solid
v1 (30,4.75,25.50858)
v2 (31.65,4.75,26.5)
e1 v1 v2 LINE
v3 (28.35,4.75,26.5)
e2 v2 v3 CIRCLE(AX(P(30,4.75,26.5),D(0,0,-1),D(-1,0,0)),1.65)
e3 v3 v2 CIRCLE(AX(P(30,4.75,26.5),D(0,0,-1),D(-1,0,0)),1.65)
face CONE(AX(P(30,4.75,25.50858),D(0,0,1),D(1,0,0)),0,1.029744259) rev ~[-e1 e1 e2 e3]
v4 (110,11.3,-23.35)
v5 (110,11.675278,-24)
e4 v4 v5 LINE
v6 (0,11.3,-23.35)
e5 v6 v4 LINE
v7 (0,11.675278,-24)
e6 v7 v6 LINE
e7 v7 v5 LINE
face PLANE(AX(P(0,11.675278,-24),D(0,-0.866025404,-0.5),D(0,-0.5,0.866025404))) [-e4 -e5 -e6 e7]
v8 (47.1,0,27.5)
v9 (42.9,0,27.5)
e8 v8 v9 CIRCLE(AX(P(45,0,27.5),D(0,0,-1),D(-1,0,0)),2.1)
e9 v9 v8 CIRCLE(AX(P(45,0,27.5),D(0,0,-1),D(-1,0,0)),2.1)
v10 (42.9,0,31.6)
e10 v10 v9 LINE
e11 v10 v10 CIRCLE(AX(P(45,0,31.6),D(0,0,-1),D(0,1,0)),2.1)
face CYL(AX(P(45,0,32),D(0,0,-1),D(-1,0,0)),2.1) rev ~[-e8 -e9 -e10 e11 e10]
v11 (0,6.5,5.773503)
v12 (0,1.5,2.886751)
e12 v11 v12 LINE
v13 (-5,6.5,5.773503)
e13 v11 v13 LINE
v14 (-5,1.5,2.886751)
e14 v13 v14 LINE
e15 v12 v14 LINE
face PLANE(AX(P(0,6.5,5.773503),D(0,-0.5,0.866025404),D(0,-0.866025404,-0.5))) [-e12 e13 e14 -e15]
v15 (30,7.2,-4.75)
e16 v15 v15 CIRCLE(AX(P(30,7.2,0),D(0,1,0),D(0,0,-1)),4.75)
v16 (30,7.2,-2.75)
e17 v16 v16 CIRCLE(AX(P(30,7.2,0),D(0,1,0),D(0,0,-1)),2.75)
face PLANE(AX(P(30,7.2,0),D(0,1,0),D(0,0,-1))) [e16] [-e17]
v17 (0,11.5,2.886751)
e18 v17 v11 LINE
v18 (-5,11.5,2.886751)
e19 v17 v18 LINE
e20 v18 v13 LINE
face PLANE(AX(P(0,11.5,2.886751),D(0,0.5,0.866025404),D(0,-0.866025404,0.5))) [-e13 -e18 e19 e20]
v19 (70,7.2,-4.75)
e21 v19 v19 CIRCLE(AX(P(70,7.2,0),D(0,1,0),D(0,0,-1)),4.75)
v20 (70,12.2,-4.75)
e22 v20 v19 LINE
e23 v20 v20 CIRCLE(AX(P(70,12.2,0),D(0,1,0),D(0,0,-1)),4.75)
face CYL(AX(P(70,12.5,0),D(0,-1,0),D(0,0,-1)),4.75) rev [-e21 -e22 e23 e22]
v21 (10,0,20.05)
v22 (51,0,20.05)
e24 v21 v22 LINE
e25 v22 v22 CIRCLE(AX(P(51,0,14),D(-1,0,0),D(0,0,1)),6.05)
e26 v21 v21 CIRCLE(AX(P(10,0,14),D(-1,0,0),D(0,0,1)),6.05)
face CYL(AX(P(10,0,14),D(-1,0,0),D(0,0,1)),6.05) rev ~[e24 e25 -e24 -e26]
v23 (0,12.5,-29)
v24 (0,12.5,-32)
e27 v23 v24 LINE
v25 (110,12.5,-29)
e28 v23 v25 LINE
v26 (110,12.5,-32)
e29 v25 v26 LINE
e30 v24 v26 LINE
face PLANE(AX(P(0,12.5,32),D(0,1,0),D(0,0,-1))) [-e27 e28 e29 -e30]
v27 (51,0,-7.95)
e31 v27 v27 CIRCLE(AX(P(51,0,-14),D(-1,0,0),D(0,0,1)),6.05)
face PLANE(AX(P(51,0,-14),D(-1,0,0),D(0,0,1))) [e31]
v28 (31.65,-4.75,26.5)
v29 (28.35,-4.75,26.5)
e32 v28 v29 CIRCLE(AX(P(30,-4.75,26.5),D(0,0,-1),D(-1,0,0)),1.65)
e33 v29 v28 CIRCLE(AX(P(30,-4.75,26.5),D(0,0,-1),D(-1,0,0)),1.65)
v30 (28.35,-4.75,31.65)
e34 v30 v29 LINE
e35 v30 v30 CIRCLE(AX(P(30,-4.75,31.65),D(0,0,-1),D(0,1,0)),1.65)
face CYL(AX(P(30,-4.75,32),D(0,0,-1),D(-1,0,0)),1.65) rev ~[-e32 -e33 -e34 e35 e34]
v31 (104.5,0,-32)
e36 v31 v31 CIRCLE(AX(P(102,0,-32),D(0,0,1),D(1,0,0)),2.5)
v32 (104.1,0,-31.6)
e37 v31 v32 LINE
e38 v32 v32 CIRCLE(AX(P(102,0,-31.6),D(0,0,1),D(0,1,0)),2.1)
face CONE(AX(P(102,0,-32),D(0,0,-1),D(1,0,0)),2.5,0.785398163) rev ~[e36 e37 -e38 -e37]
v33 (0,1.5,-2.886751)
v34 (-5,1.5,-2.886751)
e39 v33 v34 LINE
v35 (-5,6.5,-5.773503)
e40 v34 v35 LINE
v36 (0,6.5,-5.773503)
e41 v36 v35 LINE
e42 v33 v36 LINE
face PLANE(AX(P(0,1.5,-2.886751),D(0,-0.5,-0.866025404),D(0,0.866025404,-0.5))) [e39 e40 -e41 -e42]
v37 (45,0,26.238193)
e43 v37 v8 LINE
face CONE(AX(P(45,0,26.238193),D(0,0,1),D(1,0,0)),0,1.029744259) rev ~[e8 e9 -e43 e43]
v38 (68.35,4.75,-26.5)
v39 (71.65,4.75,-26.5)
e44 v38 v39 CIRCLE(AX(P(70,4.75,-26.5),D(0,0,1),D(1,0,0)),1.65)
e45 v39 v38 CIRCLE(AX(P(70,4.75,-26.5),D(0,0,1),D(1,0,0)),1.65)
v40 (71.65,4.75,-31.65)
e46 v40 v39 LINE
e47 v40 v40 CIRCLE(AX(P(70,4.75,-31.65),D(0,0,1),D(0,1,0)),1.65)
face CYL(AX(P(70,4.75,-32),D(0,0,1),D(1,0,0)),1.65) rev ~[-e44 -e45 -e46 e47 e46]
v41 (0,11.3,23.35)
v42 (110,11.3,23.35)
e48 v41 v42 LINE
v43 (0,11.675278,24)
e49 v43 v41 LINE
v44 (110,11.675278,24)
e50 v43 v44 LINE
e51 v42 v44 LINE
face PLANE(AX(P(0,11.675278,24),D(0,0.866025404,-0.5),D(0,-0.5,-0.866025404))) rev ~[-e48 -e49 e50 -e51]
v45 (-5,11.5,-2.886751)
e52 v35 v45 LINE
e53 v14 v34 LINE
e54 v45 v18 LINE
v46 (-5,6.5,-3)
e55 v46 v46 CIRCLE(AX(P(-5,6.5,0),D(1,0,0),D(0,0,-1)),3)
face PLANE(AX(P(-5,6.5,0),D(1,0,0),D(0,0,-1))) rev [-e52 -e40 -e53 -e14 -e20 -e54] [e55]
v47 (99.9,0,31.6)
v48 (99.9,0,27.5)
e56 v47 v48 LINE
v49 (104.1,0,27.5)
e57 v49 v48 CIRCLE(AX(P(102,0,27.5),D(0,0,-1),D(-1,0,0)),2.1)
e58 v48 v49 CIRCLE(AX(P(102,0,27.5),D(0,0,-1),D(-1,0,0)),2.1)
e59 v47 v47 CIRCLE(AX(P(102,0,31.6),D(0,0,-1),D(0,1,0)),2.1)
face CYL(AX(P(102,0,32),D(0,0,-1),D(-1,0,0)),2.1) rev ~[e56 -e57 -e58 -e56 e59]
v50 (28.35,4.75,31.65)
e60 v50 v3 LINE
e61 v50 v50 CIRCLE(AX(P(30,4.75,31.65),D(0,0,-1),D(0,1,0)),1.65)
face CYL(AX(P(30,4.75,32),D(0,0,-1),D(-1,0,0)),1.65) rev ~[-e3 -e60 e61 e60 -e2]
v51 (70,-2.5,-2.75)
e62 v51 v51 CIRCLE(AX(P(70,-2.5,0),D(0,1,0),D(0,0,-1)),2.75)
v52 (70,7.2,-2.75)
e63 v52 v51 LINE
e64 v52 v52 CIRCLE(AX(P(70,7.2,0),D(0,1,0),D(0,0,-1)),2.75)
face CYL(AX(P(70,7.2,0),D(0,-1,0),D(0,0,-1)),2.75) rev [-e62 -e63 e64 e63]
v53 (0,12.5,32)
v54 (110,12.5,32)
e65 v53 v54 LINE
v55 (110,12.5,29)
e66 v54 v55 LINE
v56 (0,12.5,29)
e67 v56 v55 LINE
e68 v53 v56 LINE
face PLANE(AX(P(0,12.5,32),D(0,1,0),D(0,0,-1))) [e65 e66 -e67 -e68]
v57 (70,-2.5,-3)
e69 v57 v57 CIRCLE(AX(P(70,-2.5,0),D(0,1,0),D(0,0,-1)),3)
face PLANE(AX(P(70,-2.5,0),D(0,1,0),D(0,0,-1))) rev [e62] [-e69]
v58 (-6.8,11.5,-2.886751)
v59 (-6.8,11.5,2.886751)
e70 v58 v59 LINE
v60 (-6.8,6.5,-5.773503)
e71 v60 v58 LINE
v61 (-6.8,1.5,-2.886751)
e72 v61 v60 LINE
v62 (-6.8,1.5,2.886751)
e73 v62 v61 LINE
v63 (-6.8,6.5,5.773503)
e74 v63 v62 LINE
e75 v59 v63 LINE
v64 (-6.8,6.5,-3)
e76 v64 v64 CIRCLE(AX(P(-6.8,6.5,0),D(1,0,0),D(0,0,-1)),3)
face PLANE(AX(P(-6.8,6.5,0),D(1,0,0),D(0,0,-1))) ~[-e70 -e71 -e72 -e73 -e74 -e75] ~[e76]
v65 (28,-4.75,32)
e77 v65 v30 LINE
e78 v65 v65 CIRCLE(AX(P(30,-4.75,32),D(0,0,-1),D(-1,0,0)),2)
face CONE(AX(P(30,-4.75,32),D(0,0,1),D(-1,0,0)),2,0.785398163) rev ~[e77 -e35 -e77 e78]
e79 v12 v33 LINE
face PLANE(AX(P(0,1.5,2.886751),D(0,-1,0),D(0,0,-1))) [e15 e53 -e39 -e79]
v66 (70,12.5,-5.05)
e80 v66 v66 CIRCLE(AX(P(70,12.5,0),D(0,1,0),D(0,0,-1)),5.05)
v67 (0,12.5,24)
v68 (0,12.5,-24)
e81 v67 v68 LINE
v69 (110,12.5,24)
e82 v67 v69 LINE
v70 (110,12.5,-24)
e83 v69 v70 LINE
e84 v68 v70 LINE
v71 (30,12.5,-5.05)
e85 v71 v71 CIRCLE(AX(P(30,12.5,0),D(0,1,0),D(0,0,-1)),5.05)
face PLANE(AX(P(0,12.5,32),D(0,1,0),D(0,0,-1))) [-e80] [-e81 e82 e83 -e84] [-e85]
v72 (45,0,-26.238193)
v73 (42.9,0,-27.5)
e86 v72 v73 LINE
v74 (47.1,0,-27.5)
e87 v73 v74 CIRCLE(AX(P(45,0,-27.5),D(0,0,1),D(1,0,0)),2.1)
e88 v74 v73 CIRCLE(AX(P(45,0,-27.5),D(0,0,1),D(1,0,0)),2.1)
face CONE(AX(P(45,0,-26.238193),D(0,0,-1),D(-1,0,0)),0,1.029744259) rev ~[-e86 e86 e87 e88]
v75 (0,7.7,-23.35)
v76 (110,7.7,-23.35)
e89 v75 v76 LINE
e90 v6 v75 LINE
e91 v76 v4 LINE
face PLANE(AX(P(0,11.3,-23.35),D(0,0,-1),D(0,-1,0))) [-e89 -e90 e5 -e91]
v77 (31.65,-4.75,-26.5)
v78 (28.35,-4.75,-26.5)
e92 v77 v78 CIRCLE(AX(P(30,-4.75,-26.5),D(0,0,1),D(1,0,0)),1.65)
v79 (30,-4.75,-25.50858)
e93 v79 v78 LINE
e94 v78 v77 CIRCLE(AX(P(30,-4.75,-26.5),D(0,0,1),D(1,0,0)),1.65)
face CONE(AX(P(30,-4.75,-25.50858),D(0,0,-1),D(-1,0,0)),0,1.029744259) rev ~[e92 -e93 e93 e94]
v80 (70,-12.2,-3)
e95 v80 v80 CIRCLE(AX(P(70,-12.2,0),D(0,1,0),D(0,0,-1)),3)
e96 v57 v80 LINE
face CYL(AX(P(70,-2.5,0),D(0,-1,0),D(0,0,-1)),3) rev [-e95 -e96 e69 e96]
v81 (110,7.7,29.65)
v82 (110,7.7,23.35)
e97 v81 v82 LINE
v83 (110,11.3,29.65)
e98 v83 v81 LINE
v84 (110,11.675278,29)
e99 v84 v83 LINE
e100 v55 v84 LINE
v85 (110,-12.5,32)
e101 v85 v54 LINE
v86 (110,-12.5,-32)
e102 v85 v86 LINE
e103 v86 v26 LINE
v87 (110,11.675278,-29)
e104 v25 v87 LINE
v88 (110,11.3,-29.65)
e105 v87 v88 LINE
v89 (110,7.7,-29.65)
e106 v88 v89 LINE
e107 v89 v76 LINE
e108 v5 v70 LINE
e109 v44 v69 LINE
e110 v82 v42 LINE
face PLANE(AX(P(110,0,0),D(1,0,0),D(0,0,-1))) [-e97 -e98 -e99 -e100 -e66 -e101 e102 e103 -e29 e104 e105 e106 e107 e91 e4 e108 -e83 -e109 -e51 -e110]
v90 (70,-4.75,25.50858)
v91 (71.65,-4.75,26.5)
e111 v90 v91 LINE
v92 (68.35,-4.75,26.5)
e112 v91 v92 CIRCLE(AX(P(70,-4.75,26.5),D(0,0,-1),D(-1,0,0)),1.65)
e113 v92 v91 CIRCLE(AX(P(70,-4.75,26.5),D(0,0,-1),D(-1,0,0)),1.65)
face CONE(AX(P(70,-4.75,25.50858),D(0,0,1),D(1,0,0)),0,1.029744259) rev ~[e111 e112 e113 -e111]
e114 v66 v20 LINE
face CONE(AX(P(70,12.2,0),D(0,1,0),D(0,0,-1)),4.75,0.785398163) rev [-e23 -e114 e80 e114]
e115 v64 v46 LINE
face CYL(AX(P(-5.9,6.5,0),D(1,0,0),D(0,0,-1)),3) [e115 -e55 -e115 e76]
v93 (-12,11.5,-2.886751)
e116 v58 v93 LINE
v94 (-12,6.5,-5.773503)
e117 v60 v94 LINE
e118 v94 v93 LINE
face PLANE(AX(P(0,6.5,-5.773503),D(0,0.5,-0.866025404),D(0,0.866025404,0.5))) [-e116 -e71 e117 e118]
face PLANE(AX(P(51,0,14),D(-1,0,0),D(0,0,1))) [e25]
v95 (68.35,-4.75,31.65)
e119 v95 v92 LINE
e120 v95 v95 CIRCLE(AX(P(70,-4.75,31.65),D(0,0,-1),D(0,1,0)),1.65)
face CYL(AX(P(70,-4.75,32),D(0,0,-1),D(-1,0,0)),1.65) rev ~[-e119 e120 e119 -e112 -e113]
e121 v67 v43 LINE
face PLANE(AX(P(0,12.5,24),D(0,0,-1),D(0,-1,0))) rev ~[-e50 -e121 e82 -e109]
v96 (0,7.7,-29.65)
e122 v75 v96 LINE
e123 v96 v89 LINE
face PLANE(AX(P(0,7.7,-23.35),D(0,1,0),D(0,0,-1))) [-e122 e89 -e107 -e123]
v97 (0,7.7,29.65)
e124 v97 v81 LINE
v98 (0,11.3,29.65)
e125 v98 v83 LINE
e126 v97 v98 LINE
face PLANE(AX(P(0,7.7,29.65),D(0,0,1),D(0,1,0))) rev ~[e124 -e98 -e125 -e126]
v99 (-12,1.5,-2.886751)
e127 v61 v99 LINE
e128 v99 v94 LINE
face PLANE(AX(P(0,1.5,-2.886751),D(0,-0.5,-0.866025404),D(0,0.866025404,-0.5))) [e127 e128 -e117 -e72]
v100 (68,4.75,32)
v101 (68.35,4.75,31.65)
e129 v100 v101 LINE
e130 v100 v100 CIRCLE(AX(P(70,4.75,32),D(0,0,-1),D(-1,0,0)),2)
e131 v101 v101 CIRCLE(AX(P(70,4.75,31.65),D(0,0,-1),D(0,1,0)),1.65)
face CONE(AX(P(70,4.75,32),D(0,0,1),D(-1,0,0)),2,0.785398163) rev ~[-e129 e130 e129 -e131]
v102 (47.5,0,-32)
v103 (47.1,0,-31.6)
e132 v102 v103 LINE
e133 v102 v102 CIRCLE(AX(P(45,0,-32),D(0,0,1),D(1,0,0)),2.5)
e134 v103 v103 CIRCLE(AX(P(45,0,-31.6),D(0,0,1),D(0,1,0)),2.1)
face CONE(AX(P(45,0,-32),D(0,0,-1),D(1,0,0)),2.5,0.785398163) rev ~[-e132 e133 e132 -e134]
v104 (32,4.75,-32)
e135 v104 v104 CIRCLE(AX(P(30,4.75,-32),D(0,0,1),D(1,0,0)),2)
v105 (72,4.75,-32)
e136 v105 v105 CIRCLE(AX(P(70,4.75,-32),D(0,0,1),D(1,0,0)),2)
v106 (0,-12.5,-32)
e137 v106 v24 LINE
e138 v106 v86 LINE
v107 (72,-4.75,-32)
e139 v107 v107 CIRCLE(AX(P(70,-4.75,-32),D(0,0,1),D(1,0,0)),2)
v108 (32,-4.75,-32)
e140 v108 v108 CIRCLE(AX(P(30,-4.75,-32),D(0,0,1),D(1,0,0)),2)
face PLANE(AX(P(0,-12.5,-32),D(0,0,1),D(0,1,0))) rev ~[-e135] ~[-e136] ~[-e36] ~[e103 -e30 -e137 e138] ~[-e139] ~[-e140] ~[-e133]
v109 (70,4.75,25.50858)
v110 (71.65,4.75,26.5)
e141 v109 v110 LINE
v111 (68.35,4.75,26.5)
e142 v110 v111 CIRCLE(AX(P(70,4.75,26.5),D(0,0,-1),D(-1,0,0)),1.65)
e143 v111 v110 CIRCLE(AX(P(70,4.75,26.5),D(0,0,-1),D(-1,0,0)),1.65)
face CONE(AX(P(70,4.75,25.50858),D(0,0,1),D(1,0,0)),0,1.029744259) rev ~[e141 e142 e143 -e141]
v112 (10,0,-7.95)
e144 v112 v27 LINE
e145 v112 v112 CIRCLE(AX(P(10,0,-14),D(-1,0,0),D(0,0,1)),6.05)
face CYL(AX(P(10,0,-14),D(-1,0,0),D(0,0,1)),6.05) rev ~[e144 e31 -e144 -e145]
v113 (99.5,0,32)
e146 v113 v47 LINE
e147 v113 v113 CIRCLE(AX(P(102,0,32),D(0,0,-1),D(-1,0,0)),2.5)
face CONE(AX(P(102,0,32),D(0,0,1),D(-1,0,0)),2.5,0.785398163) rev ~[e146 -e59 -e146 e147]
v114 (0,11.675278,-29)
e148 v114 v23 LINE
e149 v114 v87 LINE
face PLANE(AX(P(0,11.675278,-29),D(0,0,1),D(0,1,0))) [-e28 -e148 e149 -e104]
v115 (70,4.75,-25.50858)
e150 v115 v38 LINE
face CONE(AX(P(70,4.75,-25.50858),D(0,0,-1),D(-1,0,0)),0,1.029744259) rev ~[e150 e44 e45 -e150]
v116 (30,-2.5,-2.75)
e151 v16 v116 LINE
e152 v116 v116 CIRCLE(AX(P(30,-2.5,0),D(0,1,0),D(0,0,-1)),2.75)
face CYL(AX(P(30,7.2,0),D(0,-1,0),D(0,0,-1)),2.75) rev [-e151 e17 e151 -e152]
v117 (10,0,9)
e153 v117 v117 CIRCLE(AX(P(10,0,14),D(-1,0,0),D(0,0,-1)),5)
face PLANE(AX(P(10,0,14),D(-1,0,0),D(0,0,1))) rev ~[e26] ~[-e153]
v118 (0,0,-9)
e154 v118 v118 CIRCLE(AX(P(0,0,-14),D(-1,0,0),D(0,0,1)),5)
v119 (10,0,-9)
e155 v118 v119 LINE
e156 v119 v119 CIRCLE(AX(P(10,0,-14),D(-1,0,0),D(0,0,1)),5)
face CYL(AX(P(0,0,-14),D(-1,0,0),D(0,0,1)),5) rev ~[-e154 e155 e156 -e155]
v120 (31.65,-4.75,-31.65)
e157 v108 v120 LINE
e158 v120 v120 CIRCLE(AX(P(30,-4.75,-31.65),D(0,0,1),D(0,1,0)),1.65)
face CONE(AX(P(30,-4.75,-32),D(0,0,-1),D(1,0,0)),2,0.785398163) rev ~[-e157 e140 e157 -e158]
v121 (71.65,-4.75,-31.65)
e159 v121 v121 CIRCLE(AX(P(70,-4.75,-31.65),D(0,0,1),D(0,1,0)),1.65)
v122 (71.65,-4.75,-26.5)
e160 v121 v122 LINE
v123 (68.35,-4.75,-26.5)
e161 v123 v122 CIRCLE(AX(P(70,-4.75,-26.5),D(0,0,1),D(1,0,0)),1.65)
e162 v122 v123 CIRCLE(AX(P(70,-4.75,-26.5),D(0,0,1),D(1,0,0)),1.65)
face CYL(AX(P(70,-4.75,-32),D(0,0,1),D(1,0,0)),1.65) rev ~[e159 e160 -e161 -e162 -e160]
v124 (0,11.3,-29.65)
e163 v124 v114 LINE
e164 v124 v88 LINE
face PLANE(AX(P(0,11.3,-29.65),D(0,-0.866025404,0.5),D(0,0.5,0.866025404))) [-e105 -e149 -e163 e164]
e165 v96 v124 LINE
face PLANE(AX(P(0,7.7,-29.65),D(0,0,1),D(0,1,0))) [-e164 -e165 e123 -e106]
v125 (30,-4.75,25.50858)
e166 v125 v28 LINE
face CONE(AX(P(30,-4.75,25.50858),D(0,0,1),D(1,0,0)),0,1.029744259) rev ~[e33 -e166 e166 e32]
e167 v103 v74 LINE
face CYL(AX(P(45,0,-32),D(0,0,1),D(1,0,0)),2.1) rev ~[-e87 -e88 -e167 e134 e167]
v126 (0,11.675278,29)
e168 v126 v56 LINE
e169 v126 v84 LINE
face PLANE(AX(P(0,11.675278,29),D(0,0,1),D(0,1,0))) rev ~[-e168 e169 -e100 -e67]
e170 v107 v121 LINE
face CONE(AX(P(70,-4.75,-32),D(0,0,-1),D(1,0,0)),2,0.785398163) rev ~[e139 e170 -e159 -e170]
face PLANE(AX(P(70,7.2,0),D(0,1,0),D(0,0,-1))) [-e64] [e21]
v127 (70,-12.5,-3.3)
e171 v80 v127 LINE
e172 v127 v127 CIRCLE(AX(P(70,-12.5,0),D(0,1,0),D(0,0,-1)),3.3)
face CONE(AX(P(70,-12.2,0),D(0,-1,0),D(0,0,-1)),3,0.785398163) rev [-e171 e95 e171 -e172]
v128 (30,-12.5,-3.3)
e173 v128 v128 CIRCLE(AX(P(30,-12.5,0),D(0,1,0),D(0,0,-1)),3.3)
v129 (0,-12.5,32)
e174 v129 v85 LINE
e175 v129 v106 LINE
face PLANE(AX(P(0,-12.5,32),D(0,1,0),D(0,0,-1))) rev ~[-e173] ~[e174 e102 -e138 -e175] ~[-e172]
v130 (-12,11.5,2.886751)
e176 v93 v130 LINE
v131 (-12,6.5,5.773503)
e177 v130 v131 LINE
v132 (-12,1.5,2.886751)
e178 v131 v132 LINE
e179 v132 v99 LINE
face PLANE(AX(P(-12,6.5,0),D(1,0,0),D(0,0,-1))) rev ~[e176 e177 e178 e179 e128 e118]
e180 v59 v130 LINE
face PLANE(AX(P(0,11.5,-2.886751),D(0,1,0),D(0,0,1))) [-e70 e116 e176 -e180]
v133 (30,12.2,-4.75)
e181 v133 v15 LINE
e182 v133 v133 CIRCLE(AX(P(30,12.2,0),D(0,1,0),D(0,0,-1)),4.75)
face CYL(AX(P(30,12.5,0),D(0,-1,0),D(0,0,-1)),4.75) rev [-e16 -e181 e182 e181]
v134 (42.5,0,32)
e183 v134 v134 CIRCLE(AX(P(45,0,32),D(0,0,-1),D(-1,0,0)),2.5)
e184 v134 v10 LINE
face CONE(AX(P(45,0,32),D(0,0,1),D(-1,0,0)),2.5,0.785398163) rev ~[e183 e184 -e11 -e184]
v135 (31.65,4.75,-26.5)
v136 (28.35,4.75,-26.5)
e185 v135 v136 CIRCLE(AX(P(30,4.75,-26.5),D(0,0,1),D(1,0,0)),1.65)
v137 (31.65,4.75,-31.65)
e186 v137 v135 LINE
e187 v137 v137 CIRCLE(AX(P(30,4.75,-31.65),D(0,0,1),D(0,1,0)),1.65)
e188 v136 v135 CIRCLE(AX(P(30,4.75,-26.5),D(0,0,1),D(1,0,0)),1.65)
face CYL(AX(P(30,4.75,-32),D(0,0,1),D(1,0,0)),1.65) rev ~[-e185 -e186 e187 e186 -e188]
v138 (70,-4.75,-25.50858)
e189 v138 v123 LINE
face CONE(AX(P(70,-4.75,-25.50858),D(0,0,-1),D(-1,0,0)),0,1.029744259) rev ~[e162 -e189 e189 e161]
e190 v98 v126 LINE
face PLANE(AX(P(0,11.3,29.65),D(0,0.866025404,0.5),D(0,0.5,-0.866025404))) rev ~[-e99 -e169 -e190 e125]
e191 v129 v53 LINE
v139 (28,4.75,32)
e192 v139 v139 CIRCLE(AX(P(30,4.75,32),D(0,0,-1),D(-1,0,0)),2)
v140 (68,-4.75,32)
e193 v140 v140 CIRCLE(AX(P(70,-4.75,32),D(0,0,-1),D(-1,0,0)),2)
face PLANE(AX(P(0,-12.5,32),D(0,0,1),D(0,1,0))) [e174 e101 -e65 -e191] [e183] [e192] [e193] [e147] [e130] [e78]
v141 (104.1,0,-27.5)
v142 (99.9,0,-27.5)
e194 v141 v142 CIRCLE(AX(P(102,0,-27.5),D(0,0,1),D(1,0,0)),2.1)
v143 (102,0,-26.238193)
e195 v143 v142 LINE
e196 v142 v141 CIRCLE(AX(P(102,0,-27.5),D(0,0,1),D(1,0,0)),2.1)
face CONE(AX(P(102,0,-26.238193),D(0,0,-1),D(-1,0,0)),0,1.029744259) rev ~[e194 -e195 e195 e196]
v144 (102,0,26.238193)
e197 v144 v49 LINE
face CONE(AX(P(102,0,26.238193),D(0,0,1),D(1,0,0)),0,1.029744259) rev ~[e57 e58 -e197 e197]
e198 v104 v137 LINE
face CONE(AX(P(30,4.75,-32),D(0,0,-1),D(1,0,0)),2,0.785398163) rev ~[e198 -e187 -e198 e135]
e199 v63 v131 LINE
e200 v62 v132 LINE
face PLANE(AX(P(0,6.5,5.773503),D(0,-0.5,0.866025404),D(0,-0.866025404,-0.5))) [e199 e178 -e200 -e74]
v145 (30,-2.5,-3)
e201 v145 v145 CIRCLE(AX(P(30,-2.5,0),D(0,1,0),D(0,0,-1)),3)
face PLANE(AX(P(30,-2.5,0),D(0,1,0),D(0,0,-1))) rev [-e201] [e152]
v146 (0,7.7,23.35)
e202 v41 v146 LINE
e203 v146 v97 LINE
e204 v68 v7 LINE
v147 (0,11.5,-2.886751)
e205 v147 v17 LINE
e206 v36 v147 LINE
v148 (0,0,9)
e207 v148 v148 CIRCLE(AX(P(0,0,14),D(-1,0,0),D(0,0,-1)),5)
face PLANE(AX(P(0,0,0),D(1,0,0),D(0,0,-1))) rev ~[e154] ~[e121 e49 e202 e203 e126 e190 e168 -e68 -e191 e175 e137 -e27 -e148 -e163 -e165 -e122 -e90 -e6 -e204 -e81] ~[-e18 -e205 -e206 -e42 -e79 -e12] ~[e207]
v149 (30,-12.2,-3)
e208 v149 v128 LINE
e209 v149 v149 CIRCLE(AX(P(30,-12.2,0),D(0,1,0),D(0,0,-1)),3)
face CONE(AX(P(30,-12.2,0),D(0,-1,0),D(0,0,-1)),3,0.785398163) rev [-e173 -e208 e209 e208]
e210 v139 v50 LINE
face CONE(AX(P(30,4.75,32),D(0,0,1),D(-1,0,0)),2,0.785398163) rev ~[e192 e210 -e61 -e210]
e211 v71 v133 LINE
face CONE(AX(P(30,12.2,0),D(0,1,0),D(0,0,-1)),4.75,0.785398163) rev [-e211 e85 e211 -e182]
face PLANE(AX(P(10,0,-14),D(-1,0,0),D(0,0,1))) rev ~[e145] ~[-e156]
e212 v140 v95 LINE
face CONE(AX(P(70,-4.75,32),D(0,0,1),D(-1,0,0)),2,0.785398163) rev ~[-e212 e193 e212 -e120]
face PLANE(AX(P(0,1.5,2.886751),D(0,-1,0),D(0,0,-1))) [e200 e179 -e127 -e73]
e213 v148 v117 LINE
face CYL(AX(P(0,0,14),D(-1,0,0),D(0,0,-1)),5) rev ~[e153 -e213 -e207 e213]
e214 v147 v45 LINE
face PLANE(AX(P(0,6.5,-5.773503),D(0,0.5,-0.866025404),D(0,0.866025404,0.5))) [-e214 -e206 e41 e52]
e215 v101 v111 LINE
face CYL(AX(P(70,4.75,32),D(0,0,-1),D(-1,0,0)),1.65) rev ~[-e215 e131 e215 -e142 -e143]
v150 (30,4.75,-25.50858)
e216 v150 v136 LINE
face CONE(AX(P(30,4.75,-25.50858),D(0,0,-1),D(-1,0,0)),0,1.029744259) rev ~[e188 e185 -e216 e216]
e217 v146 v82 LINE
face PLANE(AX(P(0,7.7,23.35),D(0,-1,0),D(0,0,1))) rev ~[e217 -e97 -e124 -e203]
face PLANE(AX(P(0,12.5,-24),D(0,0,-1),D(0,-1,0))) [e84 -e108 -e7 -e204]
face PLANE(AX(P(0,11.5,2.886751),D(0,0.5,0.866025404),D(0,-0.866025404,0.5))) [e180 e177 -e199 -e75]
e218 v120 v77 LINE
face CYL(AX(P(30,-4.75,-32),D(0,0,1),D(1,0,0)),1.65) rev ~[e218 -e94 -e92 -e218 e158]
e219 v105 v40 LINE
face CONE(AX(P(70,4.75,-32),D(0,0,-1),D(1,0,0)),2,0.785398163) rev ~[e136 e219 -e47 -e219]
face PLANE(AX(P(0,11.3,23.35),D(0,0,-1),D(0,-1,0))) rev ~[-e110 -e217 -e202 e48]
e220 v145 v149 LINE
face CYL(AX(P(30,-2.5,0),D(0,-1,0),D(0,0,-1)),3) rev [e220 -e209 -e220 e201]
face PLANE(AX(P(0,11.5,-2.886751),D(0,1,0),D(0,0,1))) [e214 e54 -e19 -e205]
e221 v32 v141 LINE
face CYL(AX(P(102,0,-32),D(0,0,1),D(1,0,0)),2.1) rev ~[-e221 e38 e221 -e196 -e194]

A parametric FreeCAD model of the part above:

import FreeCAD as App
import Part
import Sketcher
from FreeCAD import Vector
Q = App.Units.Quantity


def edges_at(feature, points):
    """Names of the edges that pass closest to the given points."""
    edges = feature.Shape.Edges
    near = lambda p: min(range(len(edges)), key=lambda i: edges[i].distToShape(Part.Vertex(*p))[0])
    return sorted({f"Edge{near(p) + 1}" for p in points})


def add_polygon(sketch, points):
    """Adds a closed chain of lines whose ends are joined by coincident constraints."""
    first, n = sketch.GeometryCount, len(points)
    for a, b in zip(points, points[1:] + points[:1]):
        sketch.addGeometry(Part.LineSegment(App.Vector(*a, 0), App.Vector(*b, 0)), False)
    for i in range(n):
        sketch.addConstraint(Sketcher.Constraint("Coincident", first + i, 2, first + (i + 1) % n, 1))

doc = App.newDocument("Part")
params = doc.addObject("Spreadsheet::Sheet", "Params")
for row, (alias, value) in enumerate([
    ("sketch1_width", "25 mm"),
    ("sketch1_height", "64 mm"),
    ("pad1_length", "110 mm"),
    ("sketch2_diameter", "10 mm"),
    ("pocket1_length", "10 mm"),
    ("sketch3_diameter", "12.1 mm"),
    ("pocket2_length", "41 mm"),
    ("sketch4_height", "5 mm"),
    ("sketch4_width", "3.6 mm"),
    ("sketch4_height2", "6.3 mm"),
    ("sketch5_width", "2 mm"),
    ("sketch5_height", "25 mm"),
    ("sketch5_height2", "5.3 mm"),
    ("sketch5_width2", "4.75 mm"),
    ("groove_angle", "360 deg"),
    ("chamfer_size", "0.3 mm"),
    ("linearpattern_pitch", "40 mm"),
    ("chamfer2_size", "0.3 mm"),
    ("sketch6_width", "1 mm"),
    ("sketch6_width2", "9.7 mm"),
    ("sketch6_height", "3.3 mm"),
    ("sketch6_height2", "0.25 mm"),
    ("groove2_angle", "360 deg"),
    ("linearpattern2_pitch", "40 mm"),
    ("pad2_length", "12 mm"),
    ("sketch8_height", "25 mm"),
    ("sketch8_width", "1.8 mm"),
    ("groove3_angle", "360 deg"),
    ("sketch9_diameter", "4.2 mm"),
    ("hole_diameter", "4.2 mm"),
    ("hole_depth", "4.5 mm"),
    ("hole_csink_diameter", "5 mm"),
    ("sketch10_diameter", "4.2 mm"),
    ("hole2_diameter", "4.2 mm"),
    ("hole2_depth", "4.5 mm"),
    ("hole2_csink_diameter", "5 mm"),
    ("sketch11_diameter", "3.3 mm"),
    ("hole3_diameter", "3.3 mm"),
    ("hole3_depth", "5.5 mm"),
    ("hole3_csink_diameter", "4 mm"),
    ("sketch12_diameter", "3.3 mm"),
    ("hole4_diameter", "3.3 mm"),
    ("hole4_depth", "5.5 mm"),
    ("hole4_csink_diameter", "4 mm"),
    ("sketch13_diameter", "3.3 mm"),
    ("hole5_diameter", "3.3 mm"),
    ("hole5_depth", "5.5 mm"),
    ("hole5_csink_diameter", "4 mm"),
    ("sketch14_diameter", "3.3 mm"),
    ("hole6_diameter", "3.3 mm"),
    ("hole6_depth", "5.5 mm"),
    ("hole6_csink_diameter", "4 mm"),
], start=1):
    params.set(f"A{row}", alias)
    params.set(f"B{row}", "=" + value)
    params.setAlias(f"B{row}", alias)

body = doc.addObject("PartDesign::Body", "Body")

sketch1 = body.newObject("Sketcher::SketchObject", "Sketch")
sketch1.AttachmentSupport = (doc.getObject("YZ_Plane"), [""])
sketch1.MapMode = "FlatFace"
add_polygon(sketch1, [(12.5, 32), (-12.5, 32), (-12.5, -32), (12.5, -32)])
sketch1.addConstraint(Sketcher.Constraint("Horizontal", 0))
sketch1.addConstraint(Sketcher.Constraint("Vertical", 1))
sketch1.addConstraint(Sketcher.Constraint("Horizontal", 2))
sketch1.addConstraint(Sketcher.Constraint("Vertical", 3))
sketch1.addConstraint(Sketcher.Constraint("Symmetric", 0, 2, 2, 2, -1, 1))
sketch1.addConstraint(Sketcher.Constraint("DistanceX", 0, 2, 0, 1, Q("25 mm")))
sketch1.addConstraint(Sketcher.Constraint("DistanceY", 1, 2, 1, 1, Q("64 mm")))
sketch1.setExpression("Constraints[9]", "Params.sketch1_width")
sketch1.setExpression("Constraints[10]", "Params.sketch1_height")
pad1 = body.newObject("PartDesign::Pad", "Pad")
pad1.Profile = sketch1
pad1.setExpression("Length", "Params.pad1_length")

sketch2 = body.newObject("Sketcher::SketchObject", "Sketch001")
sketch2.AttachmentSupport = (doc.getObject("YZ_Plane"), [""])
sketch2.MapMode = "FlatFace"
sketch2.addGeometry(Part.Circle(Vector(0, -14, 0), Vector(0, 0, 1), 5), False)
sketch2.addGeometry(Part.Circle(Vector(0, 14, 0), Vector(0, 0, 1), 5), False)
sketch2.addConstraint(Sketcher.Constraint("Equal", 0, 1))
sketch2.addConstraint(Sketcher.Constraint("Symmetric", 0, 3, 1, 3, -1, 1))
sketch2.addConstraint(Sketcher.Constraint("PointOnObject", 0, 3, -2))
sketch2.addConstraint(Sketcher.Constraint("Diameter", 0, Q("10 mm")))
sketch2.addConstraint(Sketcher.Constraint("DistanceY", 0, 3, -1, 1, Q("14 mm")))
sketch2.setExpression("Constraints[3]", "Params.sketch2_diameter")
pocket1 = body.newObject("PartDesign::Pocket", "Pocket")
pocket1.Profile = sketch2
pocket1.setExpression("Length", "Params.pocket1_length")
pocket1.Reversed = True

sketch3 = body.newObject("Sketcher::SketchObject", "Sketch002")
sketch3.AttachmentSupport = (doc.getObject("YZ_Plane"), [""])
sketch3.MapMode = "FlatFace"
sketch3.AttachmentOffset = App.Placement(Vector(0, 0, 10), App.Rotation())
sketch3.addGeometry(Part.Circle(Vector(0, 14, 0), Vector(0, 0, 1), 6.05), False)
sketch3.addGeometry(Part.Circle(Vector(0, -14, 0), Vector(0, 0, 1), 6.05), False)
sketch3.addConstraint(Sketcher.Constraint("Equal", 0, 1))
sketch3.addConstraint(Sketcher.Constraint("Symmetric", 0, 3, 1, 3, -1, 1))
sketch3.addConstraint(Sketcher.Constraint("PointOnObject", 0, 3, -2))
sketch3.addConstraint(Sketcher.Constraint("Diameter", 0, Q("12.1 mm")))
sketch3.addConstraint(Sketcher.Constraint("DistanceY", -1, 1, 0, 3, Q("14 mm")))
sketch3.setExpression("Constraints[3]", "Params.sketch3_diameter")
pocket2 = body.newObject("PartDesign::Pocket", "Pocket001")
pocket2.Profile = sketch3
pocket2.setExpression("Length", "Params.pocket2_length")
pocket2.Reversed = True

sketch4 = body.newObject("Sketcher::SketchObject", "Sketch003")
sketch4.AttachmentSupport = (doc.getObject("YZ_Plane"), [""])
sketch4.MapMode = "FlatFace"
add_polygon(sketch4, [(7.7, 23.35), (7.7, 29.65), (11.3, 29.65), (11.675278, 29), (12.5, 29), (12.5, 24), (11.675278, 24), (11.3, 23.35)])
add_polygon(sketch4, [(7.7, -23.35), (11.3, -23.35), (11.675278, -24), (12.5, -24), (12.5, -29), (11.675278, -29), (11.3, -29.65), (7.7, -29.65)])
sketch4.addConstraint(Sketcher.Constraint("Vertical", 0))
sketch4.addConstraint(Sketcher.Constraint("Horizontal", 1))
sketch4.addConstraint(Sketcher.Constraint("Horizontal", 3))
sketch4.addConstraint(Sketcher.Constraint("Vertical", 4))
sketch4.addConstraint(Sketcher.Constraint("Horizontal", 5))
sketch4.addConstraint(Sketcher.Constraint("Horizontal", 7))
sketch4.addConstraint(Sketcher.Constraint("Horizontal", 8))
sketch4.addConstraint(Sketcher.Constraint("Horizontal", 10))
sketch4.addConstraint(Sketcher.Constraint("Vertical", 11))
sketch4.addConstraint(Sketcher.Constraint("Horizontal", 12))
sketch4.addConstraint(Sketcher.Constraint("Horizontal", 14))
sketch4.addConstraint(Sketcher.Constraint("Vertical", 15))
sketch4.addConstraint(Sketcher.Constraint("Symmetric", 6, 2, 8, 2, -1))
sketch4.addConstraint(Sketcher.Constraint("Symmetric", 5, 2, 9, 2, -1))
sketch4.addConstraint(Sketcher.Constraint("Symmetric", 3, 2, 11, 2, -1))
sketch4.addConstraint(Sketcher.Constraint("Symmetric", 1, 2, 13, 2, -1))
sketch4.addConstraint(Sketcher.Constraint("Parallel", 2, 9))
sketch4.addConstraint(Sketcher.Constraint("Parallel", 6, 13))
sketch4.addConstraint(Sketcher.Constraint("Vertical", 2, 2, 5, 2))
sketch4.addConstraint(Sketcher.Constraint("Vertical", 1, 2, 6, 2))
sketch4.addConstraint(Sketcher.Constraint("Vertical", 7, 2, 14, 2))
sketch4.addConstraint(Sketcher.Constraint("DistanceY", 4, 2, 4, 1, Q("5 mm")))
sketch4.addConstraint(Sketcher.Constraint("Angle", 2, Q("-60 deg")))
sketch4.addConstraint(Sketcher.Constraint("DistanceX", 1, 1, 1, 2, Q("3.6 mm")))
sketch4.addConstraint(Sketcher.Constraint("DistanceY", 0, 1, 0, 2, Q("6.3 mm")))
sketch4.addConstraint(Sketcher.Constraint("DistanceY", -1, 1, 2, 2, Q("29 mm")))
sketch4.addConstraint(Sketcher.Constraint("DistanceX", -1, 1, 0, 2, Q("7.7 mm")))
sketch4.addConstraint(Sketcher.Constraint("DistanceX", -1, 1, 3, 2, Q("12.5 mm")))
sketch4.setExpression("Constraints[37]", "Params.sketch4_height")
sketch4.setExpression("Constraints[39]", "Params.sketch4_width")
sketch4.setExpression("Constraints[40]", "Params.sketch4_height2")
pocket3 = body.newObject("PartDesign::Pocket", "Pocket002")
pocket3.Profile = sketch4
pocket3.Type = "ThroughAll"
pocket3.Reversed = True

sketch5 = body.newObject("Sketcher::SketchObject", "Sketch004")
sketch5.AttachmentSupport = (doc.getObject("XY_Plane"), [""])
sketch5.MapMode = "FlatFace"
add_polygon(sketch5, [(30, 12.5), (25.25, 12.5), (25.25, 7.2), (27.25, 7.2), (27.25, -12.5), (30, -12.5)])
sketch5.addGeometry(Part.LineSegment(Vector(30, -12.5, 0), Vector(30, 12.5, 0)), True)
sketch5.addConstraint(Sketcher.Constraint("Horizontal", 0))
sketch5.addConstraint(Sketcher.Constraint("Vertical", 1))
sketch5.addConstraint(Sketcher.Constraint("Horizontal", 2))
sketch5.addConstraint(Sketcher.Constraint("Vertical", 3))
sketch5.addConstraint(Sketcher.Constraint("Horizontal", 4))
sketch5.addConstraint(Sketcher.Constraint("Vertical", 5))
sketch5.addConstraint(Sketcher.Constraint("Vertical", 6))
sketch5.addConstraint(Sketcher.Constraint("Coincident", 6, 1, 4, 2))
sketch5.addConstraint(Sketcher.Constraint("Horizontal", 0, 2, 6, 2))
sketch5.addConstraint(Sketcher.Constraint("DistanceX", 2, 1, 2, 2, Q("2 mm")))
sketch5.addConstraint(Sketcher.Constraint("DistanceY", 5, 1, 5, 2, Q("25 mm")))
sketch5.addConstraint(Sketcher.Constraint("DistanceY", 1, 2, 1, 1, Q("5.3 mm")))
sketch5.addConstraint(Sketcher.Constraint("DistanceX", -1, 1, 4, 2, Q("30 mm")))
sketch5.addConstraint(Sketcher.Constraint("DistanceX", 0, 2, 0, 1, Q("4.75 mm")))
sketch5.addConstraint(Sketcher.Constraint("DistanceY", -1, 1, 0, 2, Q("12.5 mm")))
sketch5.setExpression("Constraints[15]", "Params.sketch5_width")
sketch5.setExpression("Constraints[16]", "Params.sketch5_height")
sketch5.setExpression("Constraints[17]", "Params.sketch5_height2")
sketch5.setExpression("Constraints[19]", "Params.sketch5_width2")
groove = body.newObject("PartDesign::Groove", "Groove")
groove.Profile = sketch5
groove.ReferenceAxis = (sketch5, ["Axis0"])
groove.setExpression("Angle", "Params.groove_angle")
doc.recompute()

chamfer = body.newObject("PartDesign::Chamfer", "Chamfer")
chamfer.Base = (groove, edges_at(groove, [(30, 12.5, 4.75)]))
chamfer.setExpression("Size", "Params.chamfer_size")
doc.recompute()

linearpattern = body.newObject("PartDesign::LinearPattern", "LinearPattern")
linearpattern.Originals = [groove]
linearpattern.Direction = (doc.getObject("X_Axis"), [""])
linearpattern.Mode = "offset"
linearpattern.setExpression("Offset", "Params.linearpattern_pitch")
linearpattern.Occurrences = 2
body.Tip = linearpattern
doc.recompute()

chamfer2 = body.newObject("PartDesign::Chamfer", "Chamfer001")
chamfer2.Base = (linearpattern, edges_at(linearpattern, [(70, 12.5, 4.75)]))
chamfer2.setExpression("Size", "Params.chamfer2_size")

sketch6 = body.newObject("Sketcher::SketchObject", "Sketch005")
sketch6.AttachmentSupport = (doc.getObject("YZ_Plane"), [""])
sketch6.MapMode = "FlatFace"
sketch6.AttachmentOffset = App.Placement(Vector(0, 0, 30), App.Rotation())
add_polygon(sketch6, [(0.152367, 0), (-12.5, 0), (-12.5, -3.3), (-12.2, -3), (-2.5, -3), (-2.5, -2.75), (-1.5, -2.75)])
sketch6.addConstraint(Sketcher.Constraint("Horizontal", 0))
sketch6.addConstraint(Sketcher.Constraint("Vertical", 1))
sketch6.addConstraint(Sketcher.Constraint("Horizontal", 3))
sketch6.addConstraint(Sketcher.Constraint("Vertical", 4))
sketch6.addConstraint(Sketcher.Constraint("Horizontal", 5))
sketch6.addConstraint(Sketcher.Constraint("PointOnObject", 0, 2, -1))
sketch6.addConstraint(Sketcher.Constraint("DistanceX", 5, 1, 5, 2, Q("1 mm")))
sketch6.addConstraint(Sketcher.Constraint("Angle", 2, Q("45 deg")))
sketch6.addConstraint(Sketcher.Constraint("Angle", 6, Q("59 deg")))
sketch6.addConstraint(Sketcher.Constraint("DistanceX", 3, 1, 3, 2, Q("9.7 mm")))
sketch6.addConstraint(Sketcher.Constraint("DistanceY", 1, 2, 1, 1, Q("3.3 mm")))
sketch6.addConstraint(Sketcher.Constraint("DistanceY", 2, 2, -1, 1, Q("3 mm")))
sketch6.addConstraint(Sketcher.Constraint("DistanceY", 4, 1, 4, 2, Q("0.25 mm")))
sketch6.addConstraint(Sketcher.Constraint("DistanceX", 0, 2, -1, 1, Q("12.5 mm")))
sketch6.setExpression("Constraints[13]", "Params.sketch6_width")
sketch6.setExpression("Constraints[16]", "Params.sketch6_width2")
sketch6.setExpression("Constraints[17]", "Params.sketch6_height")
sketch6.setExpression("Constraints[19]", "Params.sketch6_height2")
groove2 = body.newObject("PartDesign::Groove", "Groove001")
groove2.Profile = sketch6
groove2.ReferenceAxis = (sketch6, ["H_Axis"])
groove2.setExpression("Angle", "Params.groove2_angle")
doc.recompute()

linearpattern2 = body.newObject("PartDesign::LinearPattern", "LinearPattern001")
linearpattern2.Originals = [groove2]
linearpattern2.Direction = (doc.getObject("X_Axis"), [""])
linearpattern2.Mode = "offset"
linearpattern2.setExpression("Offset", "Params.linearpattern2_pitch")
linearpattern2.Occurrences = 2
body.Tip = linearpattern2

sketch7 = body.newObject("Sketcher::SketchObject", "Sketch006")
sketch7.AttachmentSupport = (doc.getObject("YZ_Plane"), [""])
sketch7.MapMode = "FlatFace"
add_polygon(sketch7, [(11.5, 2.886751), (11.5, -2.886751), (6.5, -5.773503), (1.5, -2.886751), (1.5, 2.886751), (6.5, 5.773503)])
sketch7.addConstraint(Sketcher.Constraint("Vertical", 0))
sketch7.addConstraint(Sketcher.Constraint("Vertical", 3))
sketch7.addConstraint(Sketcher.Constraint("Symmetric", 1, 2, 4, 2, -1))
sketch7.addConstraint(Sketcher.Constraint("Parallel", 1, 4))
sketch7.addConstraint(Sketcher.Constraint("Parallel", 2, 5))
sketch7.addConstraint(Sketcher.Constraint("Horizontal", 0, 2, 2, 2))
sketch7.addConstraint(Sketcher.Constraint("Horizontal", 3, 2, 5, 2))
sketch7.addConstraint(Sketcher.Constraint("Angle", 1, Q("-150 deg")))
sketch7.addConstraint(Sketcher.Constraint("DistanceX", 1, 2, 0, 2, Q("5 mm")))
sketch7.addConstraint(Sketcher.Constraint("DistanceX", -1, 1, 0, 2, Q("11.5 mm")))
sketch7.addConstraint(Sketcher.Constraint("DistanceY", 0, 2, 0, 1, Q("5.773503 mm")))
pad2 = body.newObject("PartDesign::Pad", "Pad001")
pad2.Profile = sketch7
pad2.setExpression("Length", "Params.pad2_length")
pad2.Reversed = True

sketch8 = body.newObject("Sketcher::SketchObject", "Sketch007")
sketch8.AttachmentSupport = (doc.getObject("XY_Plane"), [""])
sketch8.MapMode = "FlatFace"
add_polygon(sketch8, [(-6.8, 34.5), (-6.8, 9.5), (-5, 9.5), (-5, 34.5)])
sketch8.addGeometry(Part.LineSegment(Vector(-6.8, 6.5, 0), Vector(-5, 6.5, 0)), True)
sketch8.addConstraint(Sketcher.Constraint("Vertical", 0))
sketch8.addConstraint(Sketcher.Constraint("Horizontal", 1))
sketch8.addConstraint(Sketcher.Constraint("Vertical", 2))
sketch8.addConstraint(Sketcher.Constraint("Horizontal", 3))
sketch8.addConstraint(Sketcher.Constraint("Horizontal", 4))
sketch8.addConstraint(Sketcher.Constraint("Vertical", 3, 2, 4, 1))
sketch8.addConstraint(Sketcher.Constraint("Vertical", 2, 2, 4, 2))
sketch8.addConstraint(Sketcher.Constraint("DistanceY", 0, 2, 0, 1, Q("25 mm")))
sketch8.addConstraint(Sketcher.Constraint("DistanceX", 1, 1, 1, 2, Q("1.8 mm")))
sketch8.addConstraint(Sketcher.Constraint("DistanceX", 1, 2, -1, 1, Q("5 mm")))
sketch8.addConstraint(Sketcher.Constraint("DistanceY", 4, 1, 0, 2, Q("3 mm")))
sketch8.addConstraint(Sketcher.Constraint("DistanceY", -1, 1, 0, 2, Q("9.5 mm")))
sketch8.setExpression("Constraints[11]", "Params.sketch8_height")
sketch8.setExpression("Constraints[12]", "Params.sketch8_width")
groove3 = body.newObject("PartDesign::Groove", "Groove002")
groove3.Profile = sketch8
groove3.ReferenceAxis = (sketch8, ["Axis0"])
groove3.setExpression("Angle", "Params.groove3_angle")

sketch9 = body.newObject("Sketcher::SketchObject", "Sketch008")
sketch9.AttachmentSupport = (doc.getObject("XY_Plane"), [""])
sketch9.MapMode = "FlatFace"
sketch9.AttachmentOffset = App.Placement(Vector(0, 0, 32), App.Rotation())
sketch9.addGeometry(Part.Circle(Vector(45, 0, 0), Vector(0, 0, 1), 2.1), False)
sketch9.addGeometry(Part.Circle(Vector(102, 0, 0), Vector(0, 0, 1), 2.1), False)
sketch9.addConstraint(Sketcher.Constraint("Equal", 0, 1))
sketch9.addConstraint(Sketcher.Constraint("PointOnObject", 0, 3, -1))
sketch9.addConstraint(Sketcher.Constraint("PointOnObject", 1, 3, -1))
sketch9.addConstraint(Sketcher.Constraint("Diameter", 0, Q("4.2 mm")))
sketch9.addConstraint(Sketcher.Constraint("DistanceX", -1, 1, 0, 3, Q("45 mm")))
sketch9.addConstraint(Sketcher.Constraint("DistanceX", -1, 1, 1, 3, Q("102 mm")))
sketch9.setExpression("Constraints[3]", "Params.sketch9_diameter")
doc.recompute()
hole = body.newObject("PartDesign::Hole", "Hole")
hole.Profile = sketch9
hole.ThreadType = "None"
hole.setExpression("Diameter", "Params.hole_diameter")
hole.DepthType = "Dimension"
hole.setExpression("Depth", "Params.hole_depth")
hole.DrillPoint = "Angled"
hole.DrillPointAngle = 118
hole.HoleCutType = "Countersink"
hole.setExpression("HoleCutDiameter", "Params.hole_csink_diameter")
hole.HoleCutCountersinkAngle = 90

sketch10 = body.newObject("Sketcher::SketchObject", "Sketch009")
sketch10.AttachmentSupport = (doc.getObject("XY_Plane"), [""])
sketch10.MapMode = "FlatFace"
sketch10.AttachmentOffset = App.Placement(Vector(0, 0, -32), App.Rotation())
sketch10.addGeometry(Part.Circle(Vector(102, 0, 0), Vector(0, 0, 1), 2.1), False)
sketch10.addGeometry(Part.Circle(Vector(45, 0, 0), Vector(0, 0, 1), 2.1), False)
sketch10.addConstraint(Sketcher.Constraint("Equal", 0, 1))
sketch10.addConstraint(Sketcher.Constraint("PointOnObject", 0, 3, -1))
sketch10.addConstraint(Sketcher.Constraint("PointOnObject", 1, 3, -1))
sketch10.addConstraint(Sketcher.Constraint("Diameter", 0, Q("4.2 mm")))
sketch10.addConstraint(Sketcher.Constraint("DistanceX", -1, 1, 0, 3, Q("102 mm")))
sketch10.addConstraint(Sketcher.Constraint("DistanceX", -1, 1, 1, 3, Q("45 mm")))
sketch10.setExpression("Constraints[3]", "Params.sketch10_diameter")
doc.recompute()
hole2 = body.newObject("PartDesign::Hole", "Hole001")
hole2.Profile = sketch10
hole2.ThreadType = "None"
hole2.setExpression("Diameter", "Params.hole2_diameter")
hole2.DepthType = "Dimension"
hole2.setExpression("Depth", "Params.hole2_depth")
hole2.DrillPoint = "Angled"
hole2.DrillPointAngle = 118
hole2.HoleCutType = "Countersink"
hole2.setExpression("HoleCutDiameter", "Params.hole2_csink_diameter")
hole2.HoleCutCountersinkAngle = 90
hole2.Reversed = True

sketch11 = body.newObject("Sketcher::SketchObject", "Sketch010")
sketch11.AttachmentSupport = (doc.getObject("XY_Plane"), [""])
sketch11.MapMode = "FlatFace"
sketch11.AttachmentOffset = App.Placement(Vector(0, 0, 32), App.Rotation())
sketch11.addGeometry(Part.Circle(Vector(30, -4.75, 0), Vector(0, 0, 1), 1.65), False)
sketch11.addGeometry(Part.Circle(Vector(70, -4.75, 0), Vector(0, 0, 1), 1.65), False)
sketch11.addConstraint(Sketcher.Constraint("Equal", 0, 1))
sketch11.addConstraint(Sketcher.Constraint("Horizontal", 0, 3, 1, 3))
sketch11.addConstraint(Sketcher.Constraint("Diameter", 0, Q("3.3 mm")))
sketch11.addConstraint(Sketcher.Constraint("DistanceX", -1, 1, 0, 3, Q("30 mm")))
sketch11.addConstraint(Sketcher.Constraint("DistanceX", -1, 1, 1, 3, Q("70 mm")))
sketch11.addConstraint(Sketcher.Constraint("DistanceY", 0, 3, -1, 1, Q("4.75 mm")))
sketch11.setExpression("Constraints[2]", "Params.sketch11_diameter")
doc.recompute()
hole3 = body.newObject("PartDesign::Hole", "Hole002")
hole3.Profile = sketch11
hole3.ThreadType = "None"
hole3.setExpression("Diameter", "Params.hole3_diameter")
hole3.DepthType = "Dimension"
hole3.setExpression("Depth", "Params.hole3_depth")
hole3.DrillPoint = "Angled"
hole3.DrillPointAngle = 118
hole3.HoleCutType = "Countersink"
hole3.setExpression("HoleCutDiameter", "Params.hole3_csink_diameter")
hole3.HoleCutCountersinkAngle = 90

sketch12 = body.newObject("Sketcher::SketchObject", "Sketch011")
sketch12.AttachmentSupport = (doc.getObject("XY_Plane"), [""])
sketch12.MapMode = "FlatFace"
sketch12.AttachmentOffset = App.Placement(Vector(0, 0, -32), App.Rotation())
sketch12.addGeometry(Part.Circle(Vector(70, -4.75, 0), Vector(0, 0, 1), 1.65), False)
sketch12.addGeometry(Part.Circle(Vector(30, -4.75, 0), Vector(0, 0, 1), 1.65), False)
sketch12.addConstraint(Sketcher.Constraint("Equal", 0, 1))
sketch12.addConstraint(Sketcher.Constraint("Horizontal", 0, 3, 1, 3))
sketch12.addConstraint(Sketcher.Constraint("Diameter", 0, Q("3.3 mm")))
sketch12.addConstraint(Sketcher.Constraint("DistanceX", -1, 1, 0, 3, Q("70 mm")))
sketch12.addConstraint(Sketcher.Constraint("DistanceX", -1, 1, 1, 3, Q("30 mm")))
sketch12.addConstraint(Sketcher.Constraint("DistanceY", 0, 3, -1, 1, Q("4.75 mm")))
sketch12.setExpression("Constraints[2]", "Params.sketch12_diameter")
doc.recompute()
hole4 = body.newObject("PartDesign::Hole", "Hole003")
hole4.Profile = sketch12
hole4.ThreadType = "None"
hole4.setExpression("Diameter", "Params.hole4_diameter")
hole4.DepthType = "Dimension"
hole4.setExpression("Depth", "Params.hole4_depth")
hole4.DrillPoint = "Angled"
hole4.DrillPointAngle = 118
hole4.HoleCutType = "Countersink"
hole4.setExpression("HoleCutDiameter", "Params.hole4_csink_diameter")
hole4.HoleCutCountersinkAngle = 90
hole4.Reversed = True

sketch13 = body.newObject("Sketcher::SketchObject", "Sketch012")
sketch13.AttachmentSupport = (doc.getObject("XY_Plane"), [""])
sketch13.MapMode = "FlatFace"
sketch13.AttachmentOffset = App.Placement(Vector(0, 0, 32), App.Rotation())
sketch13.addGeometry(Part.Circle(Vector(30, 4.75, 0), Vector(0, 0, 1), 1.65), False)
sketch13.addGeometry(Part.Circle(Vector(70, 4.75, 0), Vector(0, 0, 1), 1.65), False)
sketch13.addConstraint(Sketcher.Constraint("Equal", 0, 1))
sketch13.addConstraint(Sketcher.Constraint("Horizontal", 0, 3, 1, 3))
sketch13.addConstraint(Sketcher.Constraint("Diameter", 0, Q("3.3 mm")))
sketch13.addConstraint(Sketcher.Constraint("DistanceX", -1, 1, 0, 3, Q("30 mm")))
sketch13.addConstraint(Sketcher.Constraint("DistanceX", -1, 1, 1, 3, Q("70 mm")))
sketch13.addConstraint(Sketcher.Constraint("DistanceY", -1, 1, 0, 3, Q("4.75 mm")))
sketch13.setExpression("Constraints[2]", "Params.sketch13_diameter")
doc.recompute()
hole5 = body.newObject("PartDesign::Hole", "Hole004")
hole5.Profile = sketch13
hole5.ThreadType = "None"
hole5.setExpression("Diameter", "Params.hole5_diameter")
hole5.DepthType = "Dimension"
hole5.setExpression("Depth", "Params.hole5_depth")
hole5.DrillPoint = "Angled"
hole5.DrillPointAngle = 118
hole5.HoleCutType = "Countersink"
hole5.setExpression("HoleCutDiameter", "Params.hole5_csink_diameter")
hole5.HoleCutCountersinkAngle = 90

sketch14 = body.newObject("Sketcher::SketchObject", "Sketch013")
sketch14.AttachmentSupport = (doc.getObject("XY_Plane"), [""])
sketch14.MapMode = "FlatFace"
sketch14.AttachmentOffset = App.Placement(Vector(0, 0, -32), App.Rotation())
sketch14.addGeometry(Part.Circle(Vector(70, 4.75, 0), Vector(0, 0, 1), 1.65), False)
sketch14.addGeometry(Part.Circle(Vector(30, 4.75, 0), Vector(0, 0, 1), 1.65), False)
sketch14.addConstraint(Sketcher.Constraint("Equal", 0, 1))
sketch14.addConstraint(Sketcher.Constraint("Horizontal", 0, 3, 1, 3))
sketch14.addConstraint(Sketcher.Constraint("Diameter", 0, Q("3.3 mm")))
sketch14.addConstraint(Sketcher.Constraint("DistanceX", -1, 1, 0, 3, Q("70 mm")))
sketch14.addConstraint(Sketcher.Constraint("DistanceX", -1, 1, 1, 3, Q("30 mm")))
sketch14.addConstraint(Sketcher.Constraint("DistanceY", -1, 1, 0, 3, Q("4.75 mm")))
sketch14.setExpression("Constraints[2]", "Params.sketch14_diameter")
doc.recompute()
hole6 = body.newObject("PartDesign::Hole", "Hole005")
hole6.Profile = sketch14
hole6.ThreadType = "None"
hole6.setExpression("Diameter", "Params.hole6_diameter")
hole6.DepthType = "Dimension"
hole6.setExpression("Depth", "Params.hole6_depth")
hole6.DrillPoint = "Angled"
hole6.DrillPointAngle = 118
hole6.HoleCutType = "Countersink"
hole6.setExpression("HoleCutDiameter", "Params.hole6_csink_diameter")
hole6.HoleCutCountersinkAngle = 90
hole6.Reversed = True

doc.recompute()
